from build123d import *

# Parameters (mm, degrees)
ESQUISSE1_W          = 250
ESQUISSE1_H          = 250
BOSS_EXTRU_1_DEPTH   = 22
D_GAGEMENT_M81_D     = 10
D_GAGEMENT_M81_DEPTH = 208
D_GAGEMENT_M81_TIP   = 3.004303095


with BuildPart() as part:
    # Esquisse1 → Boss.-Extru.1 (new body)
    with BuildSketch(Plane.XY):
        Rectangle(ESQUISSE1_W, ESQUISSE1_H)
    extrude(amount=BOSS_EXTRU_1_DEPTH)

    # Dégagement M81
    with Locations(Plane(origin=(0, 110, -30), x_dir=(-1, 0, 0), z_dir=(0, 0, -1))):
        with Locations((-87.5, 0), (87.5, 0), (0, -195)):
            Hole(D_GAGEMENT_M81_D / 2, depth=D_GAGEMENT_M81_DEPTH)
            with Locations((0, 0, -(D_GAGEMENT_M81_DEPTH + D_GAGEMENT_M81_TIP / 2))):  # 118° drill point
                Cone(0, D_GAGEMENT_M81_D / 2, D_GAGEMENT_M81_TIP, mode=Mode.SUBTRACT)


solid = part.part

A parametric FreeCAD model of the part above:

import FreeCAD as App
import Part
import Sketcher

V = App.Vector
Q = App.Units.Quantity


def add_polygon(sketch, points):
    """Adds a closed chain of lines whose ends are joined by coincident constraints."""
    first, n = sketch.GeometryCount, len(points)
    for a, b in zip(points, points[1:] + points[:1]):
        sketch.addGeometry(Part.LineSegment(App.Vector(*a, 0), App.Vector(*b, 0)), False)
    for i in range(n):
        sketch.addConstraint(Sketcher.Constraint("Coincident", first + i, 2, first + (i + 1) % n, 1))

doc = App.newDocument("Part")
body = doc.addObject("PartDesign::Body", "Body")

# Sketch on XY plane
sketch1 = body.newObject("Sketcher::SketchObject", "Sketch")
sketch1.AttachmentSupport = (doc.getObject("XY_Plane"), [""])
sketch1.MapMode = "FlatFace"
add_polygon(sketch1, [(-125, 125), (-125, -125), (125, -125), (125, 125)])  # lines 0-3
sketch1.addConstraint([
    Sketcher.Constraint("Vertical", 0),
    Sketcher.Constraint("Horizontal", 1),
    Sketcher.Constraint("Vertical", 2),
    Sketcher.Constraint("Horizontal", 3),
    Sketcher.Constraint("Symmetric", 0, 2, 2, 2, -1, 1),
    Sketcher.Constraint("Equal", 3, 0),
    Sketcher.Constraint("DistanceX", 1, 1, 1, 2, Q("250 mm")),
])
pad1 = body.newObject("PartDesign::Pad", "Pad")
pad1.Profile = sketch1
pad1.Length = 22

# Sketch on XY plane
sketch2 = body.newObject("Sketcher::SketchObject", "Sketch001")
sketch2.AttachmentSupport = (doc.getObject("XY_Plane"), [""])
sketch2.MapMode = "FlatFace"
sketch2.AttachmentOffset = App.Placement(V(0, 0, -30), App.Rotation())
sketch2.addGeometry([
    Part.Circle(V(88, 110, 0), V(0, 0, 1), 5),
    Part.Circle(V(-88, 110, 0), V(0, 0, 1), 5),
    Part.Circle(V(0, -85, 0), V(0, 0, 1), 5),
], False)
sketch2.addConstraint([
    Sketcher.Constraint("Equal", 0, 1),
    Sketcher.Constraint("Equal", 1, 2),
    Sketcher.Constraint("Symmetric", 0, 3, 1, 3, -2),
    Sketcher.Constraint("PointOnObject", 2, 3, -2),
    Sketcher.Constraint("Diameter", 0, Q("10 mm")),
    Sketcher.Constraint("DistanceY", -1, 1, 0, 3, Q("110 mm")),
    Sketcher.Constraint("DistanceY", 2, 3, -1, 1, Q("85 mm")),
    Sketcher.Constraint("DistanceX", 1, 3, 0, 3, Q("175 mm")),
])
doc.recompute()
hole = body.newObject("PartDesign::Hole", "Hole")
hole.Profile = sketch2
hole.ThreadType = "None"
hole.Diameter = 10
hole.DepthType = "Dimension"
hole.Depth = 208
hole.DrillPoint = "Angled"
hole.DrillPointAngle = 118
hole.Reversed = True

doc.recompute()
